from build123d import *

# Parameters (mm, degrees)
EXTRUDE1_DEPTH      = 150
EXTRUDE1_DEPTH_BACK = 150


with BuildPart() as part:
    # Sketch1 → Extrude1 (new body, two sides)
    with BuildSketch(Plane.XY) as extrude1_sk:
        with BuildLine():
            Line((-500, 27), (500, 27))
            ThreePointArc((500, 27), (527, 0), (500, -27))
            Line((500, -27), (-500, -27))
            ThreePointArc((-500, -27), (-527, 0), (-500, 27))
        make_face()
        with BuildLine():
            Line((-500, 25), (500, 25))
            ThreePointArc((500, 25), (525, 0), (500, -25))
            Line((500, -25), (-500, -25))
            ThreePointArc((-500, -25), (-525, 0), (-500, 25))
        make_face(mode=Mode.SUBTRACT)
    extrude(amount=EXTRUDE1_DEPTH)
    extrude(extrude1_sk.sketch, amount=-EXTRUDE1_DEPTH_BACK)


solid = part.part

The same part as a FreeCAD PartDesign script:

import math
import FreeCAD as App
import Part
import Sketcher

doc = App.newDocument("Part")
params = doc.addObject("Spreadsheet::Sheet", "Params")
for row, (alias, value) in enumerate([
    ("sketch1_radius", "27 mm"),
    ("sketch1_radius2", "25 mm"),
    ("sketch1_width", "1000 mm"),
    ("pad1_length", "150 mm"),
    ("pad1_length2", "150 mm"),
], start=1):
    params.set(f"A{row}", alias)
    params.set(f"B{row}", "=" + value)
    params.setAlias(f"B{row}", alias)

body = doc.addObject("PartDesign::Body", "Body")

sketch1 = body.newObject("Sketcher::SketchObject", "Sketch")
sketch1.AttachmentSupport = (doc.getObject("XY_Plane"), [""])
sketch1.MapMode = "FlatFace"
sketch1.addGeometry(Part.LineSegment(App.Vector(500, 27, 0), App.Vector(-500, 27, 0)), False)
sketch1.addGeometry(Part.ArcOfCircle(Part.Circle(App.Vector(-500, 0, 0), App.Vector(0, 0, 1), 27), math.radians(90), math.radians(270)), False)
sketch1.addGeometry(Part.LineSegment(App.Vector(-500, -27, 0), App.Vector(500, -27, 0)), False)
sketch1.addGeometry(Part.ArcOfCircle(Part.Circle(App.Vector(500, 0, 0), App.Vector(0, 0, 1), 27), math.radians(-90), math.radians(90)), False)
sketch1.addGeometry(Part.LineSegment(App.Vector(-500, 25, 0), App.Vector(500, 25, 0)), False)
sketch1.addGeometry(Part.ArcOfCircle(Part.Circle(App.Vector(500, 0, 0), App.Vector(0, 0, 1), 25), math.radians(-90), math.radians(90)), False)
sketch1.addGeometry(Part.LineSegment(App.Vector(500, -25, 0), App.Vector(-500, -25, 0)), False)
sketch1.addGeometry(Part.ArcOfCircle(Part.Circle(App.Vector(-500, 0, 0), App.Vector(0, 0, 1), 25), math.radians(90), math.radians(270)), False)
sketch1.addConstraint(Sketcher.Constraint("Tangent", 0, 2, 1, 1))
sketch1.addConstraint(Sketcher.Constraint("Tangent", 1, 2, 2, 1))
sketch1.addConstraint(Sketcher.Constraint("Tangent", 2, 2, 3, 1))
sketch1.addConstraint(Sketcher.Constraint("Tangent", 3, 2, 0, 1))
sketch1.addConstraint(Sketcher.Constraint("Tangent", 4, 2, 5, 2))
sketch1.addConstraint(Sketcher.Constraint("Tangent", 5, 1, 6, 1))
sketch1.addConstraint(Sketcher.Constraint("Tangent", 6, 2, 7, 2))
sketch1.addConstraint(Sketcher.Constraint("Tangent", 7, 1, 4, 1))
sketch1.addConstraint(Sketcher.Constraint("Horizontal", 0))
sketch1.addConstraint(Sketcher.Constraint("Horizontal", 2))
sketch1.addConstraint(Sketcher.Constraint("Horizontal", 4))
sketch1.addConstraint(Sketcher.Constraint("Horizontal", 6))
sketch1.addConstraint(Sketcher.Constraint("Coincident", 5, 3, 3, 3))
sketch1.addConstraint(Sketcher.Constraint("Symmetric", 1, 3, 3, 3, -1, 1))
sketch1.addConstraint(Sketcher.Constraint("Vertical", 7, 3, 0, 2))
sketch1.addConstraint(Sketcher.Constraint("Radius", 1, 27.0))
sketch1.addConstraint(Sketcher.Constraint("Radius", 5, 25.0))
sketch1.addConstraint(Sketcher.Constraint("DistanceX", 0, 2, 0, 1, 1000.0))
sketch1.setExpression("Constraints[15]", "Params.sketch1_radius")
sketch1.setExpression("Constraints[16]", "Params.sketch1_radius2")
sketch1.setExpression("Constraints[17]", "Params.sketch1_width")
pad1 = body.newObject("PartDesign::Pad", "Pad")
pad1.Profile = sketch1
pad1.Type = "TwoLengths"
pad1.setExpression("Length", "Params.pad1_length")
pad1.setExpression("Length2", "Params.pad1_length2")

doc.recompute()
